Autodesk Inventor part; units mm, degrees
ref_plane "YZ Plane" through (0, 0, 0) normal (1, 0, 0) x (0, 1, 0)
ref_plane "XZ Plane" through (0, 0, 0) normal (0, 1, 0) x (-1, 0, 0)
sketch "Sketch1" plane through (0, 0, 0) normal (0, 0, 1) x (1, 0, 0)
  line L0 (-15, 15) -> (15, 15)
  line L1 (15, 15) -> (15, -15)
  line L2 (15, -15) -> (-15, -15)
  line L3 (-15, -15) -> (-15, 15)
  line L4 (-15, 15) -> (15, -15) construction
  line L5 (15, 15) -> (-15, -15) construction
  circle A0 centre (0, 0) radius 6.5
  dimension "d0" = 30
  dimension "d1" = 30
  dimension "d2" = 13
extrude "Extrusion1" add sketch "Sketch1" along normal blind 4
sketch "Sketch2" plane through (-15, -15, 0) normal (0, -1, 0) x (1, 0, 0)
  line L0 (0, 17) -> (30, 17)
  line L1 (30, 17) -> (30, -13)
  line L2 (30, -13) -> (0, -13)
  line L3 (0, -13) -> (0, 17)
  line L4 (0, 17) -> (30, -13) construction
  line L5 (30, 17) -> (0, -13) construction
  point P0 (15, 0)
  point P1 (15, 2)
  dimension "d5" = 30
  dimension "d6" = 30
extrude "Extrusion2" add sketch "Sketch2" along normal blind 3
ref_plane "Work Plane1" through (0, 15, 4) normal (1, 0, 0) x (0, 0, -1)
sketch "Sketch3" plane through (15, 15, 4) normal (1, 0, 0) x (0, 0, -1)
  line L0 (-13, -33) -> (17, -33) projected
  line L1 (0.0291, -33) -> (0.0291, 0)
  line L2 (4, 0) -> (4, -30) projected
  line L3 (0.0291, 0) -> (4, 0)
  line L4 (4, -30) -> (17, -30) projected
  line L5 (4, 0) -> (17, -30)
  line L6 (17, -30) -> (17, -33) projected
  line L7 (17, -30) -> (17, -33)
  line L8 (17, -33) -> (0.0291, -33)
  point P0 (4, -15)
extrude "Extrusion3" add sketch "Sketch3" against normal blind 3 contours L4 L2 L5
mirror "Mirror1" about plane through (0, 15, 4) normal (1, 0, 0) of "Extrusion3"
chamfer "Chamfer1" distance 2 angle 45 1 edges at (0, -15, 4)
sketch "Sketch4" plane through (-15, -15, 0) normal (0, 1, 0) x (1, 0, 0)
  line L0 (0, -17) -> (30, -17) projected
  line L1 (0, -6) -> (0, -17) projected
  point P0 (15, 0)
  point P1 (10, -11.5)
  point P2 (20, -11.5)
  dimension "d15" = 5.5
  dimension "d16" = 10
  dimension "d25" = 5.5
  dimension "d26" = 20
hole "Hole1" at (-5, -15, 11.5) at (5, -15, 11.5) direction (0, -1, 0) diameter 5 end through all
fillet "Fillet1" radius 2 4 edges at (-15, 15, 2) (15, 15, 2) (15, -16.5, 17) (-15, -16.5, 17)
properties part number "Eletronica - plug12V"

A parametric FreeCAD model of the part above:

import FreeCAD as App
import Part
import Sketcher

V = App.Vector


def edges_at(feature, points):
    """Names of the edges that pass closest to the given points."""
    edges = feature.Shape.Edges
    near = lambda p: min(range(len(edges)), key=lambda i: edges[i].distToShape(Part.Vertex(*p))[0])
    return sorted({f"Edge{near(p) + 1}" for p in points})


def add_polygon(sketch, points):
    """Adds a closed chain of lines whose ends are joined by coincident constraints."""
    first, n = sketch.GeometryCount, len(points)
    for a, b in zip(points, points[1:] + points[:1]):
        sketch.addGeometry(Part.LineSegment(App.Vector(*a, 0), App.Vector(*b, 0)), False)
    for i in range(n):
        sketch.addConstraint(Sketcher.Constraint("Coincident", first + i, 2, first + (i + 1) % n, 1))

doc = App.newDocument("Part")
body = doc.addObject("PartDesign::Body", "Body")

# Sketch on XY plane
sketch1 = body.newObject("Sketcher::SketchObject", "Sketch")
sketch1.AttachmentSupport = (doc.getObject("XY_Plane"), [""])
sketch1.MapMode = "FlatFace"
add_polygon(sketch1, [(15, 15), (-15, 15), (-15, -15), (15, -15)])  # lines 0-3
sketch1.addGeometry(Part.Circle(V(0, 0, 0), V(0, 0, 1), 6.5), False)  # 4
sketch1.addConstraint([
    Sketcher.Constraint("Horizontal", 0),
    Sketcher.Constraint("Vertical", 1),
    Sketcher.Constraint("Horizontal", 2),
    Sketcher.Constraint("Vertical", 3),
    Sketcher.Constraint("Coincident", 4, 3, -1, 1),
    Sketcher.Constraint("Symmetric", 0, 2, 2, 2, -1, 1),
    Sketcher.Constraint("Equal", 2, 1),
    Sketcher.Constraint("Diameter", 4, 13.0),
    Sketcher.Constraint("DistanceX", 0, 2, 0, 1, 30.0),
])
pad1 = body.newObject("PartDesign::Pad", "Pad")
pad1.Profile = sketch1
pad1.Length = 4

# Sketch on XZ plane
sketch2 = body.newObject("Sketcher::SketchObject", "Sketch001")
sketch2.AttachmentSupport = (doc.getObject("XZ_Plane"), [""])
sketch2.MapMode = "FlatFace"
sketch2.AttachmentOffset = App.Placement(V(0, 0, 15), App.Rotation())
add_polygon(sketch2, [(15, 17), (-15, 17), (-15, -13), (15, -13)])  # lines 0-3
sketch2.addConstraint([
    Sketcher.Constraint("Horizontal", 0),
    Sketcher.Constraint("Vertical", 1),
    Sketcher.Constraint("Horizontal", 2),
    Sketcher.Constraint("Vertical", 3),
    Sketcher.Constraint("Equal", 2, 1),
    Sketcher.Constraint("DistanceX", 0, 2, 0, 1, 30.0),
    Sketcher.Constraint("DistanceX", 0, 2, -1, 1, 15.0),
    Sketcher.Constraint("DistanceY", -1, 1, 0, 2, 17.0),
])
pad2 = body.newObject("PartDesign::Pad", "Pad001")
pad2.Profile = sketch2
pad2.Length = 3

# Sketch on YZ plane
sketch3 = body.newObject("Sketcher::SketchObject", "Sketch002")
sketch3.AttachmentSupport = (doc.getObject("YZ_Plane"), [""])
sketch3.MapMode = "FlatFace"
sketch3.AttachmentOffset = App.Placement(V(0, 0, 15), App.Rotation())
add_polygon(sketch3, [(-15, 0), (-15, -13), (15, 0)])  # lines 0-2
sketch3.addConstraint([
    Sketcher.Constraint("Vertical", 0),
    Sketcher.Constraint("Horizontal", 2),
    Sketcher.Constraint("Symmetric", 1, 2, 2, 2, -1, 1),
    Sketcher.Constraint("DistanceX", 2, 2, 2, 1, 30.0),
    Sketcher.Constraint("DistanceY", 0, 2, 0, 1, 13.0),
])
pad3 = body.newObject("PartDesign::Pad", "Pad002")
pad3.Profile = sketch3
pad3.Length = 3
pad3.Reversed = True
doc.recompute()

mirrored = body.newObject("PartDesign::Mirrored", "Mirrored")
mirrored.Originals = [pad3]
mirrored.MirrorPlane = (doc.getObject("YZ_Plane"), [""])
body.Tip = mirrored
doc.recompute()

chamfer = body.newObject("PartDesign::Chamfer", "Chamfer")
chamfer.Base = (mirrored, edges_at(mirrored, [(0, -15, 4)]))
chamfer.Size = 2

# Sketch on XZ plane
sketch4 = body.newObject("Sketcher::SketchObject", "Sketch003")
sketch4.AttachmentSupport = (doc.getObject("XZ_Plane"), [""])
sketch4.MapMode = "FlatFace"
sketch4.AttachmentOffset = App.Placement(V(0, 0, 15), App.Rotation())
sketch4.addGeometry([
    Part.Circle(V(-5, 11.5, 0), V(0, 0, 1), 2.5),
    Part.Circle(V(5, 11.5, 0), V(0, 0, 1), 2.5),
], False)
sketch4.addConstraint([
    Sketcher.Constraint("Equal", 0, 1),
    Sketcher.Constraint("Symmetric", 0, 3, 1, 3, -2),
    Sketcher.Constraint("Diameter", 0, 5.0),
    Sketcher.Constraint("DistanceX", 0, 3, -1, 1, 5.0),
    Sketcher.Constraint("DistanceY", -1, 1, 0, 3, 11.5),
])
doc.recompute()
hole = body.newObject("PartDesign::Hole", "Hole")
hole.Profile = sketch4
hole.ThreadType = "None"
hole.Diameter = 5
hole.DepthType = "ThroughAll"
hole.Reversed = True
doc.recompute()

fillet = body.newObject("PartDesign::Fillet", "Fillet")
fillet.Base = (hole, edges_at(hole, [
    (-15, 15, 2),
    (15, 15, 2),
    (15, -16.5, 17),
    (-15, -16.5, 17),
]))
fillet.Radius = 2

doc.recompute()
